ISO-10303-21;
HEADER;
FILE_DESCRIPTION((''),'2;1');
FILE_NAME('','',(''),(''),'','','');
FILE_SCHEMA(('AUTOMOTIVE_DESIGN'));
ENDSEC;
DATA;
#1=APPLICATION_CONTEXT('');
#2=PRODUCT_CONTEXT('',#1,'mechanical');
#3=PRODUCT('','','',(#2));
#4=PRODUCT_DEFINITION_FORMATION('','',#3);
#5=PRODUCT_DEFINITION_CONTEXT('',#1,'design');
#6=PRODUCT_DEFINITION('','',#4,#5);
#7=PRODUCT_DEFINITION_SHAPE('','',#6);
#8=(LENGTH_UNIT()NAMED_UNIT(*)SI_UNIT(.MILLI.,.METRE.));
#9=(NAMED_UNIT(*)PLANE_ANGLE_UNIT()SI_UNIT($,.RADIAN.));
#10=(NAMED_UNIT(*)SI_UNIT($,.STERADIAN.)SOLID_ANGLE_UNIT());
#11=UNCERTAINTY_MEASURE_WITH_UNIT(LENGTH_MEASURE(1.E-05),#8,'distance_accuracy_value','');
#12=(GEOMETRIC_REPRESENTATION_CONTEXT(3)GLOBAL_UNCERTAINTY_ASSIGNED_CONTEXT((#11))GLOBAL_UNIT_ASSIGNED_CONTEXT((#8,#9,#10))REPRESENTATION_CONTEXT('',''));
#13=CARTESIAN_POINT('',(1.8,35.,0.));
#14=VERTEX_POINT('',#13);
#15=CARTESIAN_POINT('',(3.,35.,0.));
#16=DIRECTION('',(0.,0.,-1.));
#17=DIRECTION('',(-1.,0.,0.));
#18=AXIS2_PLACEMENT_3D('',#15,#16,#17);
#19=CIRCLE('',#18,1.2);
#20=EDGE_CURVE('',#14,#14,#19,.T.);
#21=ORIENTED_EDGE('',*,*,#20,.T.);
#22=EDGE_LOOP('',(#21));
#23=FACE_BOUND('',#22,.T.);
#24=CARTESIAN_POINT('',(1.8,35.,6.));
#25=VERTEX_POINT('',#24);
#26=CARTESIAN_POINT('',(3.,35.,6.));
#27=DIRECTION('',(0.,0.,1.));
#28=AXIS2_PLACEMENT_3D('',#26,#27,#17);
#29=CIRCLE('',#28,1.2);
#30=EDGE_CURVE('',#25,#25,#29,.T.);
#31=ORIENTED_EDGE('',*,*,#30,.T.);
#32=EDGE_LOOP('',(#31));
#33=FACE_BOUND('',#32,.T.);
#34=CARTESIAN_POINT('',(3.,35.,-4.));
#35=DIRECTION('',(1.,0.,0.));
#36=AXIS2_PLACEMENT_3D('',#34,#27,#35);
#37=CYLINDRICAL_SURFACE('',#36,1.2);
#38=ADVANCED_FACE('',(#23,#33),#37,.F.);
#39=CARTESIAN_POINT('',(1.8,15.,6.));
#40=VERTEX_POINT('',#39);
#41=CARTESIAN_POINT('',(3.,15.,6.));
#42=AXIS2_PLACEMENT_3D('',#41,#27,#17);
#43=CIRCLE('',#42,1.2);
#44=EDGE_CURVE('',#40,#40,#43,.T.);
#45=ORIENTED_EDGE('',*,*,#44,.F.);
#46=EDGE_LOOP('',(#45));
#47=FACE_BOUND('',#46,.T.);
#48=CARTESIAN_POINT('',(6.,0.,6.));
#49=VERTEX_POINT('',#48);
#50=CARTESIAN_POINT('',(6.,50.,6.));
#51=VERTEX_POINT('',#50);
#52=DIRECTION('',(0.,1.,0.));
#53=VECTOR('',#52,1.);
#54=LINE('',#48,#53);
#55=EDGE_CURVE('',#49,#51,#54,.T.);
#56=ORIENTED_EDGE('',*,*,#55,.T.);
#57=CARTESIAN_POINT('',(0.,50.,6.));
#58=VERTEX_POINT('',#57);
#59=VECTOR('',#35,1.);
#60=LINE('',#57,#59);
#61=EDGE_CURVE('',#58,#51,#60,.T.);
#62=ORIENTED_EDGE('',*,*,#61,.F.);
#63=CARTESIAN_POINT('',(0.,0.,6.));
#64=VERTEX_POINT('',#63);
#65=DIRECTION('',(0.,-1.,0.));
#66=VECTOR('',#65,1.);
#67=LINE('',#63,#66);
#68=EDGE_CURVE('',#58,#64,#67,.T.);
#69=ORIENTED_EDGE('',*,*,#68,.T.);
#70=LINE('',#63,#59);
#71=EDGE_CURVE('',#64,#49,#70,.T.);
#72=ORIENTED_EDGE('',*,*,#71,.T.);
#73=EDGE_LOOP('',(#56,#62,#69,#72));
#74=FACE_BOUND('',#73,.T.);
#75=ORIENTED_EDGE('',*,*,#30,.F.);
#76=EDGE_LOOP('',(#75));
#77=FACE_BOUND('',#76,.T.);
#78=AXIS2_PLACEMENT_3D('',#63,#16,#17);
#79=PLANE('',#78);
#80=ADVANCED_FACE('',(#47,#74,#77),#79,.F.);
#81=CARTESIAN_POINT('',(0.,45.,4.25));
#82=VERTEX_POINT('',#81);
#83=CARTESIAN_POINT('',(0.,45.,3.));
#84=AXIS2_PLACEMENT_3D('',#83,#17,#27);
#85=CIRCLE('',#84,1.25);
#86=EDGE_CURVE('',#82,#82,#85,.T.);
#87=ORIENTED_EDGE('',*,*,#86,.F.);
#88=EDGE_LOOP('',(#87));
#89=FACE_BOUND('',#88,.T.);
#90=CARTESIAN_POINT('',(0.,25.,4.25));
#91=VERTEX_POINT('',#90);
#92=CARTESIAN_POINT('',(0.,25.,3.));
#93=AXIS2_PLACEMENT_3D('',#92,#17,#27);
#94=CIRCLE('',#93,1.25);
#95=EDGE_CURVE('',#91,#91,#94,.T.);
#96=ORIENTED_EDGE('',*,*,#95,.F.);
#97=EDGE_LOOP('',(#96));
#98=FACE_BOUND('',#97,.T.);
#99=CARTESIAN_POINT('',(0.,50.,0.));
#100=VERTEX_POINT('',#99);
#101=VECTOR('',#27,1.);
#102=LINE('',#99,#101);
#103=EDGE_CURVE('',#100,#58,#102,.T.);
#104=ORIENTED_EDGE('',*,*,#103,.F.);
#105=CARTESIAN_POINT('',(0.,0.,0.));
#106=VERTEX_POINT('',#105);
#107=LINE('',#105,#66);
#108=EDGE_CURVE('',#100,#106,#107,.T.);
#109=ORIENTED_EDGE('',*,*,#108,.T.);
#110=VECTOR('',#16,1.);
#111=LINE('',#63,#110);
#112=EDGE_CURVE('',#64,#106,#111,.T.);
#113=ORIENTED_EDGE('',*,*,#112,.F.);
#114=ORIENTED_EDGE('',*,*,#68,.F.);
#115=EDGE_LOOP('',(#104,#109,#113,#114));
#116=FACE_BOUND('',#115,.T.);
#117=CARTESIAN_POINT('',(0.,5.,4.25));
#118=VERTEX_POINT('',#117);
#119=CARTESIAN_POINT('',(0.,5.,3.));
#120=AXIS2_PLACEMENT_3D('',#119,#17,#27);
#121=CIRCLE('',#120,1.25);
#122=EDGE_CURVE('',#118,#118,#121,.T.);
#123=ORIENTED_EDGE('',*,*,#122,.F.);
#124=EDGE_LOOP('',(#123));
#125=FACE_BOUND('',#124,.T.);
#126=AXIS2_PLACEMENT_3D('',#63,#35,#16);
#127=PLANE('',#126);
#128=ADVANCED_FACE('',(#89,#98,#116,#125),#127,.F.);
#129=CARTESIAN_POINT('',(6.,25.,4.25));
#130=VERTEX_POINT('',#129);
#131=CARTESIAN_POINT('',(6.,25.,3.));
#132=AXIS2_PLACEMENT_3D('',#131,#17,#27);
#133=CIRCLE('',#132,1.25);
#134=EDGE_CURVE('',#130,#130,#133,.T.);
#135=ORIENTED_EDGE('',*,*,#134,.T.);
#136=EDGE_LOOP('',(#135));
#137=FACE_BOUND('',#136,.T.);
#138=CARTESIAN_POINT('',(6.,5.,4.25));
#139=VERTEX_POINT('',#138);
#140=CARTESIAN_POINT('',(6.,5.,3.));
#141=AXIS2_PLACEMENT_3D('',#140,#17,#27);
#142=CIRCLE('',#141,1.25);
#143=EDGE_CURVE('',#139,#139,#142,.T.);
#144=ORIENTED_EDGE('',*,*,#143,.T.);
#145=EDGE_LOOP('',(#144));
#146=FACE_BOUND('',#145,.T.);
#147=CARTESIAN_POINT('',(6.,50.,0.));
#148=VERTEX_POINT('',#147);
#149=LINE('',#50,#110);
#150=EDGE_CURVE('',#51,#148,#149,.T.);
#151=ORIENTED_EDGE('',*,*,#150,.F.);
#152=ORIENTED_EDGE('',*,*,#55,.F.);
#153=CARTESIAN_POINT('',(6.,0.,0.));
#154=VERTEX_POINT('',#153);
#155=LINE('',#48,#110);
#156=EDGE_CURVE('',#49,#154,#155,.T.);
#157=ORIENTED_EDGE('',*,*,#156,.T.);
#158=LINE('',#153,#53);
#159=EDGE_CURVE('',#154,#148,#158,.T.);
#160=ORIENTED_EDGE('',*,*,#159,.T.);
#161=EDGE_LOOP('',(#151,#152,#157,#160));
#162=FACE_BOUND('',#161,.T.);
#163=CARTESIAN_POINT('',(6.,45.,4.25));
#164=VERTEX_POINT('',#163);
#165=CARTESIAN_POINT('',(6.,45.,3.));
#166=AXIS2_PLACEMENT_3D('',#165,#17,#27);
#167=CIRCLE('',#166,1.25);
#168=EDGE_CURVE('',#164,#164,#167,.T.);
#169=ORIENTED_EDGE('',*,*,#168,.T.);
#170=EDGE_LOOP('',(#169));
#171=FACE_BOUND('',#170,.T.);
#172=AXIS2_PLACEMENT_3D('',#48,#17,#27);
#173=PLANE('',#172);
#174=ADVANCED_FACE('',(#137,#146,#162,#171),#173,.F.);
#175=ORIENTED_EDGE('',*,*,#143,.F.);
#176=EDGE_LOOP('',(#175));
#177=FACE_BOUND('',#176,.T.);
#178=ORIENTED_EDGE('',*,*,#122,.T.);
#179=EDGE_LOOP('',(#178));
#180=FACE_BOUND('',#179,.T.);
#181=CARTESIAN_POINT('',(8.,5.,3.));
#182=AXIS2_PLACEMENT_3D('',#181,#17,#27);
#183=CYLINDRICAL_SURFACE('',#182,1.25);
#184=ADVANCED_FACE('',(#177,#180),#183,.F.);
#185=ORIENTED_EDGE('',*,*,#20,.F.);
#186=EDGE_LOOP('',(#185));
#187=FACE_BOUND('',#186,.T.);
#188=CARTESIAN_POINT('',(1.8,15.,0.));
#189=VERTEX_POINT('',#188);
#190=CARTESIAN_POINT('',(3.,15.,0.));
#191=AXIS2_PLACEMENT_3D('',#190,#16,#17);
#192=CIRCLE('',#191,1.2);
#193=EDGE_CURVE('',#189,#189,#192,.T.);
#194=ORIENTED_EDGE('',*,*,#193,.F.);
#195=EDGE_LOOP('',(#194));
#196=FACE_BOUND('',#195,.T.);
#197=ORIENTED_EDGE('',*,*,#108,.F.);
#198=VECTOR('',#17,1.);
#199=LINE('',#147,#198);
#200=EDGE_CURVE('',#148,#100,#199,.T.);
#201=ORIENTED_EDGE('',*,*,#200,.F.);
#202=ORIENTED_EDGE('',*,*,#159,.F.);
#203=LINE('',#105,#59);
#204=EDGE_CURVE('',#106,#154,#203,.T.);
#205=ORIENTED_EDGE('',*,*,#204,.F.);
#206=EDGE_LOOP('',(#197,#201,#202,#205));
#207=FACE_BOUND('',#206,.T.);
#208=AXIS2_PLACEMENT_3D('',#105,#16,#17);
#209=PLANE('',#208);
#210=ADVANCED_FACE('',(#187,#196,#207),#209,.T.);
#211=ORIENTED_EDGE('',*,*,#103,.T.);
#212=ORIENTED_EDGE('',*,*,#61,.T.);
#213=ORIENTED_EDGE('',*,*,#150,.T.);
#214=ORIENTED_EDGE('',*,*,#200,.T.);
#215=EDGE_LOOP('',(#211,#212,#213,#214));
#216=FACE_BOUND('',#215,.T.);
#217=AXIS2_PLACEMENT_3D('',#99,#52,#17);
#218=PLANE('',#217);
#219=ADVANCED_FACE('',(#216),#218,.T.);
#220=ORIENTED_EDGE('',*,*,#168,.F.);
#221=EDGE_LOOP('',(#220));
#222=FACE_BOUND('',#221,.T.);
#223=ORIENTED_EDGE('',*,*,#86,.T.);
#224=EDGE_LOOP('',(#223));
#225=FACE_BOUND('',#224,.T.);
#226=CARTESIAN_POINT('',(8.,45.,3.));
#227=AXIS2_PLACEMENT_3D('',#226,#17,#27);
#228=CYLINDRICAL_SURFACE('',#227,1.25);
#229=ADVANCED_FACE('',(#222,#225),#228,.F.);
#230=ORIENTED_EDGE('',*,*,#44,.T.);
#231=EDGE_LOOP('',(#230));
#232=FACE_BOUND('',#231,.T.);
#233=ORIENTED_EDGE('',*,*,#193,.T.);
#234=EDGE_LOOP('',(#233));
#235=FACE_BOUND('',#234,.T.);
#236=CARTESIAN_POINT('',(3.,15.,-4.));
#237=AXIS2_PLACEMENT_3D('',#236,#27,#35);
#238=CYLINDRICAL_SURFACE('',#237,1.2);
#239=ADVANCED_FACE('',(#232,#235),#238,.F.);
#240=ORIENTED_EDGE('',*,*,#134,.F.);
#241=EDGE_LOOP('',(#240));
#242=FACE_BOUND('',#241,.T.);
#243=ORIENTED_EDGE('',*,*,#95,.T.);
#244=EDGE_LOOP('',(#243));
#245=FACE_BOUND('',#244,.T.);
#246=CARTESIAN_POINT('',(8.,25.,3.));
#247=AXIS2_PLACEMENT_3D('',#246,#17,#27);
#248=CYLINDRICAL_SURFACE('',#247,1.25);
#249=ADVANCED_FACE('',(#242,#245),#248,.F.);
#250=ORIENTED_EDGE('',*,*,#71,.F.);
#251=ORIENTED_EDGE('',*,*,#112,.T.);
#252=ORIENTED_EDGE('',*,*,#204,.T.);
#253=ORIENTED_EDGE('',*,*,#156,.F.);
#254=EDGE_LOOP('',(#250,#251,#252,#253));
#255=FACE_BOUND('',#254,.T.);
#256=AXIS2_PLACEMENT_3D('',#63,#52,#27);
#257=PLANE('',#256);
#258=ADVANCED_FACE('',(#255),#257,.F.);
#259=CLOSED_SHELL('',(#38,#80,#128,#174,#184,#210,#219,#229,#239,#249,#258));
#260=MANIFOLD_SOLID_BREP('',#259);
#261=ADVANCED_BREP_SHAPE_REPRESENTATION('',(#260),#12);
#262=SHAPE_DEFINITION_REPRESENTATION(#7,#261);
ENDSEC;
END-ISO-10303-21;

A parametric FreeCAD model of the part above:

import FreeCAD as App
import Part
import Sketcher

V = App.Vector

doc = App.newDocument("Part")
body = doc.addObject("PartDesign::Body", "Body")

# Sketch on XY plane
sketch1 = body.newObject("Sketcher::SketchObject", "Sketch")
sketch1.AttachmentSupport = (doc.getObject("XY_Plane"), [""])
sketch1.MapMode = "FlatFace"
sketch1.addGeometry([
    Part.LineSegment(V(0, 70, 0), V(0, 0, 0)),
    Part.LineSegment(V(0, 0, 0), V(6, 0, 0)),
    Part.LineSegment(V(6, 0, 0), V(6, 70, 0)),
    Part.LineSegment(V(6, 70, 0), V(0, 70, 0)),
], False)
sketch1.addConstraint([
    Sketcher.Constraint("Coincident", 0, 2, 1, 1),
    Sketcher.Constraint("Coincident", 1, 2, 2, 1),
    Sketcher.Constraint("Coincident", 2, 2, 3, 1),
    Sketcher.Constraint("Coincident", 3, 2, 0, 1),
    Sketcher.Constraint("Vertical", 0),
    Sketcher.Constraint("Horizontal", 1),
    Sketcher.Constraint("Vertical", 2),
    Sketcher.Constraint("Horizontal", 3),
    Sketcher.Constraint("Coincident", 0, 2, -1, 1),
    Sketcher.Constraint("DistanceX", 1, 1, 1, 2, 6.0),
    Sketcher.Constraint("DistanceY", 0, 2, 0, 1, 70.0),
])
pad1 = body.newObject("PartDesign::Pad", "Pad")
pad1.Profile = sketch1
pad1.Length = 6

# Sketch on YZ plane
sketch2 = body.newObject("Sketcher::SketchObject", "Sketch001")
sketch2.AttachmentSupport = (doc.getObject("YZ_Plane"), [""])
sketch2.MapMode = "FlatFace"
sketch2.addGeometry([
    Part.Circle(V(65, 3, 0), V(0, 0, 1), 1.2),
    Part.Circle(V(45, 3, 0), V(0, 0, 1), 1.2),
    Part.Circle(V(25, 3, 0), V(0, 0, 1), 1.2),
    Part.Circle(V(5, 3, 0), V(0, 0, 1), 1.2),
], False)
sketch2.addConstraint([
    Sketcher.Constraint("Equal", 0, 1),
    Sketcher.Constraint("Equal", 1, 2),
    Sketcher.Constraint("Equal", 2, 3),
    Sketcher.Constraint("Horizontal", 0, 3, 1, 3),
    Sketcher.Constraint("Horizontal", 1, 3, 2, 3),
    Sketcher.Constraint("Horizontal", 2, 3, 3, 3),
    Sketcher.Constraint("Diameter", 0, 2.5),
    Sketcher.Constraint("DistanceX", -1, 1, 0, 3, 65.0),
    Sketcher.Constraint("DistanceY", -1, 1, 0, 3, 3.0),
    Sketcher.Constraint("DistanceX", -1, 1, 1, 3, 45.0),
    Sketcher.Constraint("DistanceX", -1, 1, 2, 3, 25.0),
    Sketcher.Constraint("DistanceX", -1, 1, 3, 3, 5.0),
])
pocket1 = body.newObject("PartDesign::Pocket", "Pocket")
pocket1.Profile = sketch2
pocket1.Length = 8
pocket1.Reversed = True

# Sketch on XY plane
sketch3 = body.newObject("Sketcher::SketchObject", "Sketch002")
sketch3.AttachmentSupport = (doc.getObject("XY_Plane"), [""])
sketch3.MapMode = "FlatFace"
sketch3.AttachmentOffset = App.Placement(V(0, 0, 6), App.Rotation())
sketch3.addGeometry([
    Part.Circle(V(3, 15, 0), V(0, 0, 1), 1.2),
    Part.Circle(V(3, 35, 0), V(0, 0, 1), 1.2),
    Part.Circle(V(3, 55, 0), V(0, 0, 1), 1.2),
], False)
sketch3.addConstraint([
    Sketcher.Constraint("Equal", 0, 1),
    Sketcher.Constraint("Equal", 1, 2),
    Sketcher.Constraint("Vertical", 0, 3, 1, 3),
    Sketcher.Constraint("Vertical", 1, 3, 2, 3),
    Sketcher.Constraint("Diameter", 0, 2.4),
    Sketcher.Constraint("DistanceX", -1, 1, 0, 3, 3.0),
    Sketcher.Constraint("DistanceY", -1, 1, 0, 3, 15.0),
    Sketcher.Constraint("DistanceY", -1, 1, 1, 3, 35.0),
    Sketcher.Constraint("DistanceY", -1, 1, 2, 3, 55.0),
])
pocket2 = body.newObject("PartDesign::Pocket", "Pocket001")
pocket2.Profile = sketch3
pocket2.Length = 10

# Sketch on XZ plane
sketch4 = body.newObject("Sketcher::SketchObject", "Sketch003")
sketch4.AttachmentSupport = (doc.getObject("XZ_Plane"), [""])
sketch4.MapMode = "FlatFace"
sketch4.AttachmentOffset = App.Placement(V(0, 0, -70), App.Rotation())
sketch4.addGeometry([
    Part.LineSegment(V(0, 0, 0), V(0, 6, 0)),
    Part.LineSegment(V(0, 6, 0), V(6, 6, 0)),
    Part.LineSegment(V(6, 6, 0), V(6, 0, 0)),
    Part.LineSegment(V(6, 0, 0), V(0, 0, 0)),
], False)
sketch4.addConstraint([
    Sketcher.Constraint("Coincident", 0, 2, 1, 1),
    Sketcher.Constraint("Coincident", 1, 2, 2, 1),
    Sketcher.Constraint("Coincident", 2, 2, 3, 1),
    Sketcher.Constraint("Coincident", 3, 2, 0, 1),
    Sketcher.Constraint("Vertical", 0),
    Sketcher.Constraint("Horizontal", 1),
    Sketcher.Constraint("Vertical", 2),
    Sketcher.Constraint("Horizontal", 3),
    Sketcher.Constraint("Coincident", 3, 2, -1, 1),
    Sketcher.Constraint("Equal", 3, 0),
    Sketcher.Constraint("DistanceX", 1, 1, 1, 2, 6.0),
])
pocket3 = body.newObject("PartDesign::Pocket", "Pocket002")
pocket3.Profile = sketch4
pocket3.Length = 20
pocket3.Reversed = True

doc.recompute()
